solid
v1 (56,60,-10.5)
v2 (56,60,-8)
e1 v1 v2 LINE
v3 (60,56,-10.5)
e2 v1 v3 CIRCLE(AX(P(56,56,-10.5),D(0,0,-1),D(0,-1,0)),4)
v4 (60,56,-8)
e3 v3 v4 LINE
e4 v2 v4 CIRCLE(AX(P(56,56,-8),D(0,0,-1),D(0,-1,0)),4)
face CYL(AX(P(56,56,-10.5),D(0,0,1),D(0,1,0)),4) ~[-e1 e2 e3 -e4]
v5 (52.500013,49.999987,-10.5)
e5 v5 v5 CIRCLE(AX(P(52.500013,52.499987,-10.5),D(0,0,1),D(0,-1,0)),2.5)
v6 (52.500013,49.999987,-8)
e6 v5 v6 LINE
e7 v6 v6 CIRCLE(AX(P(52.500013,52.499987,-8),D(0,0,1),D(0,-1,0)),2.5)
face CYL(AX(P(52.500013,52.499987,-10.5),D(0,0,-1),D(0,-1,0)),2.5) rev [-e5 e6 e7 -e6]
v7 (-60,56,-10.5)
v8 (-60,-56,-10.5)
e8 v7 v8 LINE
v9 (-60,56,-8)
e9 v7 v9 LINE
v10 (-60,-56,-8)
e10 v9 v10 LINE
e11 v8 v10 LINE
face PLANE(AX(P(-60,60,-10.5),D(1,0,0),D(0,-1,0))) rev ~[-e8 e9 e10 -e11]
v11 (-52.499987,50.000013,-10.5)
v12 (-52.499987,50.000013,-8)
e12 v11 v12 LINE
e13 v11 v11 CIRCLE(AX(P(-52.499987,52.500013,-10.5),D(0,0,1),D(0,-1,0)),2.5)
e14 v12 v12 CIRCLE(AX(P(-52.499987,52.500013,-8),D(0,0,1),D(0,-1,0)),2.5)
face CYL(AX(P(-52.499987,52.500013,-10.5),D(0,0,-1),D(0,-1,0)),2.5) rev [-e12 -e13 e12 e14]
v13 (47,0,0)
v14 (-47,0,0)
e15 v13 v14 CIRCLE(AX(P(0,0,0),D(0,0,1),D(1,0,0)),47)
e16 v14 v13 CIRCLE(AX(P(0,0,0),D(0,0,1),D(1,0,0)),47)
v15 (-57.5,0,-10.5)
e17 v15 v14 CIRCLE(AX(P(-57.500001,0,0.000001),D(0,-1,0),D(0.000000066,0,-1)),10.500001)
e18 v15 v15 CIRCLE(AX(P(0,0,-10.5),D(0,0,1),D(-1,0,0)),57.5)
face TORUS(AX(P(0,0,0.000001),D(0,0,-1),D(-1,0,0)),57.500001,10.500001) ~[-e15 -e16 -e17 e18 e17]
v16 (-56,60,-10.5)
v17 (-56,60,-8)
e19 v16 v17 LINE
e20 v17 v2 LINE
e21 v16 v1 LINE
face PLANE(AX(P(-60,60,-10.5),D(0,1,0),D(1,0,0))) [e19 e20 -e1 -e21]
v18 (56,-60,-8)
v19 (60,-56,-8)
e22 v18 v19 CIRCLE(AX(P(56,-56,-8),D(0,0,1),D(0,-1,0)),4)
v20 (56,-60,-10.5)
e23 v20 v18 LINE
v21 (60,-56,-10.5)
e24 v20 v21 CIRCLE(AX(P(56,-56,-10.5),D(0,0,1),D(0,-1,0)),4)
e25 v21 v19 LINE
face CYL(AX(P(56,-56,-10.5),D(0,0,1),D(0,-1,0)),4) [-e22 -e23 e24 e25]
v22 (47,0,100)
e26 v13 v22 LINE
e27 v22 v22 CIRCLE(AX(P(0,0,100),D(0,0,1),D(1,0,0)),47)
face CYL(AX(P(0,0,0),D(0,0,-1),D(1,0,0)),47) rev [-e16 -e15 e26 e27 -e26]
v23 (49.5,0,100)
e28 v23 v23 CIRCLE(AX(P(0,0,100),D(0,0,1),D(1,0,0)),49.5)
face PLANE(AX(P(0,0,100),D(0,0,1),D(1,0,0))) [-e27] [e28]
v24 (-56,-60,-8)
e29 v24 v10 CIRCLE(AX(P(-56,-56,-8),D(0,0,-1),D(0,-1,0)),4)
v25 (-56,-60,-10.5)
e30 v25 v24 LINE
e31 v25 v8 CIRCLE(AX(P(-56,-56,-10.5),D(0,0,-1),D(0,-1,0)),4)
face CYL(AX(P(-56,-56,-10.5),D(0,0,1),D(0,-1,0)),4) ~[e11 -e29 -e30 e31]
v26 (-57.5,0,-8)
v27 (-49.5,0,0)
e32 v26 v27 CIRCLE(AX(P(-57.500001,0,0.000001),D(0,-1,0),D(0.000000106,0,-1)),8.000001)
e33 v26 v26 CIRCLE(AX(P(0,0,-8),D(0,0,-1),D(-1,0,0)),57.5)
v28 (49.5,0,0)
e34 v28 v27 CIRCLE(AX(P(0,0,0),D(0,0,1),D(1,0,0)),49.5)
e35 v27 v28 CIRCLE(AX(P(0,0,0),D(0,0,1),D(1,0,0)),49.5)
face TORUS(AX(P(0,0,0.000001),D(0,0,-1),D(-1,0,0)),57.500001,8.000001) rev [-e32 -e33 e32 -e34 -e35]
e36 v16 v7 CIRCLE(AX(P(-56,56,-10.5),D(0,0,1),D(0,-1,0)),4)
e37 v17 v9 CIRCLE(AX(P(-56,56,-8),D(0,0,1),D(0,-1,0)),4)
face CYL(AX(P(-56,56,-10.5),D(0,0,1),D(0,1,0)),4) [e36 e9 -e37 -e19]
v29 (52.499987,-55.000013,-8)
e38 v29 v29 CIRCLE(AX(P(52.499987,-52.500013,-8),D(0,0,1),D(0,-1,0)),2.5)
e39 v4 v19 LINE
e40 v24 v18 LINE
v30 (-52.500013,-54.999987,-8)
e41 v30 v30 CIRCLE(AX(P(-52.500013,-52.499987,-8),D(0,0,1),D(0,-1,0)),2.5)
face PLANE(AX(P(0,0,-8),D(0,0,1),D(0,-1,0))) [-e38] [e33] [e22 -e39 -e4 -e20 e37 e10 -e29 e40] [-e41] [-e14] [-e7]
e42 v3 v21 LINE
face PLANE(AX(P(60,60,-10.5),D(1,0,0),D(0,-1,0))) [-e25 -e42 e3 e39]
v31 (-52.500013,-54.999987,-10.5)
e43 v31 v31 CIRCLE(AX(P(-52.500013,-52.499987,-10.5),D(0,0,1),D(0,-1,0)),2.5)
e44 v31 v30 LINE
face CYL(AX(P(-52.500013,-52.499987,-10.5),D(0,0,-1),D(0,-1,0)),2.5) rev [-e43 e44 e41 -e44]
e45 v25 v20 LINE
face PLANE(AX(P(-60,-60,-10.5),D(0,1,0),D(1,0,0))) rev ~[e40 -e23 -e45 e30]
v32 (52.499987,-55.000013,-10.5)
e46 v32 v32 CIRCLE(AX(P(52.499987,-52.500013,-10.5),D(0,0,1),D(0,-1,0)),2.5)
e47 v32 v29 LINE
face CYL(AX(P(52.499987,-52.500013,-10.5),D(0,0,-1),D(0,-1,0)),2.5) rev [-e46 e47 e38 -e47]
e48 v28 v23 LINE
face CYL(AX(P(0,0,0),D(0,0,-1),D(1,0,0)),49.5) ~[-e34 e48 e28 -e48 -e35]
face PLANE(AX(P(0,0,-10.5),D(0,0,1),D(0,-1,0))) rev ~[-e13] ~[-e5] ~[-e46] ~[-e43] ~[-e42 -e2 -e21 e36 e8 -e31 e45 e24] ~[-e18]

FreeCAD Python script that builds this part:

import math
import FreeCAD as App
import Part
import Sketcher
from FreeCAD import Vector
Q = App.Units.Quantity


def edges_at(feature, points):
    """Names of the edges that pass closest to the given points."""
    edges = feature.Shape.Edges
    near = lambda p: min(range(len(edges)), key=lambda i: edges[i].distToShape(Part.Vertex(*p))[0])
    return sorted({f"Edge{near(p) + 1}" for p in points})

doc = App.newDocument("Part")
params = doc.addObject("Spreadsheet::Sheet", "Params")
for row, (alias, value) in enumerate([
    ("sketch1_diameter", "99 mm"),
    ("sketch1_diameter2", "94 mm"),
    ("pad1_length", "100 mm"),
    ("sketch2_radius", "8.000001 mm"),
    ("sketch2_radius2", "10.500001 mm"),
    ("revolution_angle", "360 deg"),
    ("sketch3_diameter", "5 mm"),
    ("sketch3_diameter2", "115 mm"),
    ("sketch3_width", "120 mm"),
    ("pad2_length", "2.5 mm"),
    ("fillet_radius", "4 mm"),
], start=1):
    params.set(f"A{row}", alias)
    params.set(f"B{row}", "=" + value)
    params.setAlias(f"B{row}", alias)

body = doc.addObject("PartDesign::Body", "Body")

# Sketch on XY plane
sketch1 = body.newObject("Sketcher::SketchObject", "Sketch")
sketch1.AttachmentSupport = (doc.getObject("XY_Plane"), [""])
sketch1.MapMode = "FlatFace"
sketch1.addGeometry([
    Part.Circle(Vector(0, 0, 0), Vector(0, 0, 1), 50),
    Part.Circle(Vector(0, 0, 0), Vector(0, 0, 1), 47),
], False)
sketch1.addConstraint([
    Sketcher.Constraint("Coincident", 0, 3, -1, 1),
    Sketcher.Constraint("Coincident", 1, 3, -1, 1),
    Sketcher.Constraint("Diameter", 0, Q("99 mm")),
    Sketcher.Constraint("Diameter", 1, Q("94 mm")),
])
sketch1.setExpression("Constraints[2]", "Params.sketch1_diameter")
sketch1.setExpression("Constraints[3]", "Params.sketch1_diameter2")
pad1 = body.newObject("PartDesign::Pad", "Pad")
pad1.Profile = sketch1
pad1.setExpression("Length", "Params.pad1_length")

# Sketch on XZ plane
sketch2 = body.newObject("Sketcher::SketchObject", "Sketch001")
sketch2.AttachmentSupport = (doc.getObject("XZ_Plane"), [""])
sketch2.MapMode = "FlatFace"
sketch2.addGeometry([
    Part.ArcOfCircle(Part.Circle(Vector(-57.5, 0, 0), Vector(0, 0, 1), 10.5), math.radians(-90), math.radians(0)),
    Part.LineSegment(Vector(-47, 0, 0), Vector(-49.5, 0, 0)),
    Part.ArcOfCircle(Part.Circle(Vector(-57.5, 0, 0), Vector(0, 0, 1), 8), math.radians(-90), math.radians(0)),
    Part.LineSegment(Vector(-57.5, -8, 0), Vector(-57.5, -10.5, 0)),
], False)
sketch2.addConstraint([
    Sketcher.Constraint("Coincident", 0, 2, 1, 1),
    Sketcher.Constraint("Coincident", 1, 2, 2, 2),
    Sketcher.Constraint("Coincident", 2, 1, 3, 1),
    Sketcher.Constraint("Coincident", 3, 2, 0, 1),
    Sketcher.Constraint("Horizontal", 1),
    Sketcher.Constraint("Vertical", 3),
    Sketcher.Constraint("Coincident", 2, 3, 0, 3),
    Sketcher.Constraint("PointOnObject", 0, 3, -1),
    Sketcher.Constraint("PointOnObject", 0, 2, -1),
    Sketcher.Constraint("Vertical", 0, 3, 2, 1),
    Sketcher.Constraint("Radius", 2, Q("8.000001 mm")),
    Sketcher.Constraint("Radius", 0, Q("10.500001 mm")),
    Sketcher.Constraint("DistanceX", 0, 2, -1, 1, Q("47 mm")),
])
sketch2.setExpression("Constraints[10]", "Params.sketch2_radius")
sketch2.setExpression("Constraints[11]", "Params.sketch2_radius2")
revolution = body.newObject("PartDesign::Revolution", "Revolution")
revolution.Profile = sketch2
revolution.ReferenceAxis = (sketch2, ["V_Axis"])
revolution.setExpression("Angle", "Params.revolution_angle")

# Sketch on XY plane
sketch3 = body.newObject("Sketcher::SketchObject", "Sketch002")
sketch3.AttachmentSupport = (doc.getObject("XY_Plane"), [""])
sketch3.MapMode = "FlatFace"
sketch3.AttachmentOffset = App.Placement(Vector(0, 0, -10.5), App.Rotation())
sketch3.addGeometry([
    Part.LineSegment(Vector(60, 60, 0), Vector(-60, 60, 0)),  # 0
    Part.LineSegment(Vector(-60, 60, 0), Vector(-60, -60, 0)),  # 1
    Part.LineSegment(Vector(-60, -60, 0), Vector(60, -60, 0)),  # 2
    Part.LineSegment(Vector(60, -60, 0), Vector(60, 60, 0)),  # 3
    Part.Circle(Vector(-52.5, 52.5, 0), Vector(0, 0, 1), 2.5),  # 4
    Part.Circle(Vector(-52.5, -52.5, 0), Vector(0, 0, 1), 2.5),  # 5
    Part.Circle(Vector(52.5, 52.5, 0), Vector(0, 0, 1), 2.5),  # 6
    Part.Circle(Vector(0, 0, 0), Vector(0, 0, 1), 57.5),  # 7
    Part.Circle(Vector(52.5, -52.5, 0), Vector(0, 0, 1), 2.5),  # 8
], False)
sketch3.addConstraint([
    Sketcher.Constraint("Coincident", 0, 2, 1, 1),
    Sketcher.Constraint("Coincident", 1, 2, 2, 1),
    Sketcher.Constraint("Coincident", 2, 2, 3, 1),
    Sketcher.Constraint("Coincident", 3, 2, 0, 1),
    Sketcher.Constraint("Horizontal", 0),
    Sketcher.Constraint("Vertical", 1),
    Sketcher.Constraint("Horizontal", 2),
    Sketcher.Constraint("Vertical", 3),
    Sketcher.Constraint("Coincident", 7, 3, -1, 1),
    Sketcher.Constraint("Equal", 4, 5),
    Sketcher.Constraint("Equal", 5, 6),
    Sketcher.Constraint("Equal", 6, 8),
    Sketcher.Constraint("Symmetric", 5, 3, 6, 3, -1, 1),
    Sketcher.Constraint("Symmetric", 4, 3, 8, 3, -1, 1),
    Sketcher.Constraint("Symmetric", 0, 2, 2, 2, -1, 1),
    Sketcher.Constraint("Equal", 2, 1),
    Sketcher.Constraint("Diameter", 4, Q("5 mm")),
    Sketcher.Constraint("Diameter", 7, Q("115 mm")),
    Sketcher.Constraint("DistanceX", 0, 2, 0, 1, Q("120 mm")),
    Sketcher.Constraint("DistanceY", 5, 3, 4, 3, Q("105 mm")),
    Sketcher.Constraint("DistanceX", 4, 3, 6, 3, Q("105 mm")),
    Sketcher.Constraint("DistanceX", 4, 3, -1, 1, Q("52.499987 mm")),
    Sketcher.Constraint("DistanceY", -1, 1, 4, 3, Q("52.500013 mm")),
])
sketch3.setExpression("Constraints[16]", "Params.sketch3_diameter")
sketch3.setExpression("Constraints[17]", "Params.sketch3_diameter2")
sketch3.setExpression("Constraints[18]", "Params.sketch3_width")
pad2 = body.newObject("PartDesign::Pad", "Pad001")
pad2.Profile = sketch3
pad2.setExpression("Length", "Params.pad2_length")
doc.recompute()

fillet = body.newObject("PartDesign::Fillet", "Fillet")
fillet.Base = (pad2, edges_at(pad2, [
    (-60, -60, -9.25),
    (60, -60, -9.25),
    (-60, 60, -9.25),
    (60, 60, -9.25),
]))
fillet.setExpression("Radius", "Params.fillet_radius")

doc.recompute()
